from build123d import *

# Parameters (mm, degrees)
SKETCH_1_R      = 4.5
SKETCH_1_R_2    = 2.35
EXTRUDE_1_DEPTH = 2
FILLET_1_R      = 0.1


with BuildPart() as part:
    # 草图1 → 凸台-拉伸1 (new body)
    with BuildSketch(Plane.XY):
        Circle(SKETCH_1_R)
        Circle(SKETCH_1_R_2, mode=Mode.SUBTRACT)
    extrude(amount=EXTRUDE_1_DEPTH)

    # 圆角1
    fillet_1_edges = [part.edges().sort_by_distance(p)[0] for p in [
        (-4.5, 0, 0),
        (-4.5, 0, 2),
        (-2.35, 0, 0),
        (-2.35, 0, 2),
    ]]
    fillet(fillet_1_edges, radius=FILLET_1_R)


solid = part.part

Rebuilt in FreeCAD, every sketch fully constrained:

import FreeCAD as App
import Part
import Sketcher
from FreeCAD import Vector


def edges_at(feature, points):
    """Names of the edges that pass closest to the given points."""
    edges = feature.Shape.Edges
    near = lambda p: min(range(len(edges)), key=lambda i: edges[i].distToShape(Part.Vertex(*p))[0])
    return sorted({f"Edge{near(p) + 1}" for p in points})

doc = App.newDocument("Part")
body = doc.addObject("PartDesign::Body", "Body")

# Sketch on XY plane
sketch1 = doc.addObject("Sketcher::SketchObject", "Sketch")
body.addObject(sketch1)
sketch1.AttachmentSupport = (doc.XY_Plane, [""])
sketch1.MapMode = "FlatFace"
sketch1.addGeometry([
    Part.Circle(Vector(0, 0, 0), Vector(0, 0, 1), 4.5),
    Part.Circle(Vector(0, 0, 0), Vector(0, 0, 1), 2.4),
], False)
sketch1.addConstraint([
    Sketcher.Constraint("Coincident", 0, 3, -1, 1),
    Sketcher.Constraint("Coincident", 1, 3, -1, 1),
    Sketcher.Constraint("Diameter", 0, 9.0),
    Sketcher.Constraint("Diameter", 1, 4.7),
])
pad1 = doc.addObject("PartDesign::Pad", "Pad")
body.addObject(pad1)
pad1.Profile = sketch1
pad1.Length = 2
doc.recompute()

fillet = doc.addObject("PartDesign::Fillet", "Fillet")
body.addObject(fillet)
fillet.Base = (pad1, edges_at(pad1, [
    (-4.5, 0, 0),
    (-4.5, 0, 2),
    (-2.35, 0, 0),
    (-2.35, 0, 2),
]))
fillet.Radius = 0.1

doc.recompute()
